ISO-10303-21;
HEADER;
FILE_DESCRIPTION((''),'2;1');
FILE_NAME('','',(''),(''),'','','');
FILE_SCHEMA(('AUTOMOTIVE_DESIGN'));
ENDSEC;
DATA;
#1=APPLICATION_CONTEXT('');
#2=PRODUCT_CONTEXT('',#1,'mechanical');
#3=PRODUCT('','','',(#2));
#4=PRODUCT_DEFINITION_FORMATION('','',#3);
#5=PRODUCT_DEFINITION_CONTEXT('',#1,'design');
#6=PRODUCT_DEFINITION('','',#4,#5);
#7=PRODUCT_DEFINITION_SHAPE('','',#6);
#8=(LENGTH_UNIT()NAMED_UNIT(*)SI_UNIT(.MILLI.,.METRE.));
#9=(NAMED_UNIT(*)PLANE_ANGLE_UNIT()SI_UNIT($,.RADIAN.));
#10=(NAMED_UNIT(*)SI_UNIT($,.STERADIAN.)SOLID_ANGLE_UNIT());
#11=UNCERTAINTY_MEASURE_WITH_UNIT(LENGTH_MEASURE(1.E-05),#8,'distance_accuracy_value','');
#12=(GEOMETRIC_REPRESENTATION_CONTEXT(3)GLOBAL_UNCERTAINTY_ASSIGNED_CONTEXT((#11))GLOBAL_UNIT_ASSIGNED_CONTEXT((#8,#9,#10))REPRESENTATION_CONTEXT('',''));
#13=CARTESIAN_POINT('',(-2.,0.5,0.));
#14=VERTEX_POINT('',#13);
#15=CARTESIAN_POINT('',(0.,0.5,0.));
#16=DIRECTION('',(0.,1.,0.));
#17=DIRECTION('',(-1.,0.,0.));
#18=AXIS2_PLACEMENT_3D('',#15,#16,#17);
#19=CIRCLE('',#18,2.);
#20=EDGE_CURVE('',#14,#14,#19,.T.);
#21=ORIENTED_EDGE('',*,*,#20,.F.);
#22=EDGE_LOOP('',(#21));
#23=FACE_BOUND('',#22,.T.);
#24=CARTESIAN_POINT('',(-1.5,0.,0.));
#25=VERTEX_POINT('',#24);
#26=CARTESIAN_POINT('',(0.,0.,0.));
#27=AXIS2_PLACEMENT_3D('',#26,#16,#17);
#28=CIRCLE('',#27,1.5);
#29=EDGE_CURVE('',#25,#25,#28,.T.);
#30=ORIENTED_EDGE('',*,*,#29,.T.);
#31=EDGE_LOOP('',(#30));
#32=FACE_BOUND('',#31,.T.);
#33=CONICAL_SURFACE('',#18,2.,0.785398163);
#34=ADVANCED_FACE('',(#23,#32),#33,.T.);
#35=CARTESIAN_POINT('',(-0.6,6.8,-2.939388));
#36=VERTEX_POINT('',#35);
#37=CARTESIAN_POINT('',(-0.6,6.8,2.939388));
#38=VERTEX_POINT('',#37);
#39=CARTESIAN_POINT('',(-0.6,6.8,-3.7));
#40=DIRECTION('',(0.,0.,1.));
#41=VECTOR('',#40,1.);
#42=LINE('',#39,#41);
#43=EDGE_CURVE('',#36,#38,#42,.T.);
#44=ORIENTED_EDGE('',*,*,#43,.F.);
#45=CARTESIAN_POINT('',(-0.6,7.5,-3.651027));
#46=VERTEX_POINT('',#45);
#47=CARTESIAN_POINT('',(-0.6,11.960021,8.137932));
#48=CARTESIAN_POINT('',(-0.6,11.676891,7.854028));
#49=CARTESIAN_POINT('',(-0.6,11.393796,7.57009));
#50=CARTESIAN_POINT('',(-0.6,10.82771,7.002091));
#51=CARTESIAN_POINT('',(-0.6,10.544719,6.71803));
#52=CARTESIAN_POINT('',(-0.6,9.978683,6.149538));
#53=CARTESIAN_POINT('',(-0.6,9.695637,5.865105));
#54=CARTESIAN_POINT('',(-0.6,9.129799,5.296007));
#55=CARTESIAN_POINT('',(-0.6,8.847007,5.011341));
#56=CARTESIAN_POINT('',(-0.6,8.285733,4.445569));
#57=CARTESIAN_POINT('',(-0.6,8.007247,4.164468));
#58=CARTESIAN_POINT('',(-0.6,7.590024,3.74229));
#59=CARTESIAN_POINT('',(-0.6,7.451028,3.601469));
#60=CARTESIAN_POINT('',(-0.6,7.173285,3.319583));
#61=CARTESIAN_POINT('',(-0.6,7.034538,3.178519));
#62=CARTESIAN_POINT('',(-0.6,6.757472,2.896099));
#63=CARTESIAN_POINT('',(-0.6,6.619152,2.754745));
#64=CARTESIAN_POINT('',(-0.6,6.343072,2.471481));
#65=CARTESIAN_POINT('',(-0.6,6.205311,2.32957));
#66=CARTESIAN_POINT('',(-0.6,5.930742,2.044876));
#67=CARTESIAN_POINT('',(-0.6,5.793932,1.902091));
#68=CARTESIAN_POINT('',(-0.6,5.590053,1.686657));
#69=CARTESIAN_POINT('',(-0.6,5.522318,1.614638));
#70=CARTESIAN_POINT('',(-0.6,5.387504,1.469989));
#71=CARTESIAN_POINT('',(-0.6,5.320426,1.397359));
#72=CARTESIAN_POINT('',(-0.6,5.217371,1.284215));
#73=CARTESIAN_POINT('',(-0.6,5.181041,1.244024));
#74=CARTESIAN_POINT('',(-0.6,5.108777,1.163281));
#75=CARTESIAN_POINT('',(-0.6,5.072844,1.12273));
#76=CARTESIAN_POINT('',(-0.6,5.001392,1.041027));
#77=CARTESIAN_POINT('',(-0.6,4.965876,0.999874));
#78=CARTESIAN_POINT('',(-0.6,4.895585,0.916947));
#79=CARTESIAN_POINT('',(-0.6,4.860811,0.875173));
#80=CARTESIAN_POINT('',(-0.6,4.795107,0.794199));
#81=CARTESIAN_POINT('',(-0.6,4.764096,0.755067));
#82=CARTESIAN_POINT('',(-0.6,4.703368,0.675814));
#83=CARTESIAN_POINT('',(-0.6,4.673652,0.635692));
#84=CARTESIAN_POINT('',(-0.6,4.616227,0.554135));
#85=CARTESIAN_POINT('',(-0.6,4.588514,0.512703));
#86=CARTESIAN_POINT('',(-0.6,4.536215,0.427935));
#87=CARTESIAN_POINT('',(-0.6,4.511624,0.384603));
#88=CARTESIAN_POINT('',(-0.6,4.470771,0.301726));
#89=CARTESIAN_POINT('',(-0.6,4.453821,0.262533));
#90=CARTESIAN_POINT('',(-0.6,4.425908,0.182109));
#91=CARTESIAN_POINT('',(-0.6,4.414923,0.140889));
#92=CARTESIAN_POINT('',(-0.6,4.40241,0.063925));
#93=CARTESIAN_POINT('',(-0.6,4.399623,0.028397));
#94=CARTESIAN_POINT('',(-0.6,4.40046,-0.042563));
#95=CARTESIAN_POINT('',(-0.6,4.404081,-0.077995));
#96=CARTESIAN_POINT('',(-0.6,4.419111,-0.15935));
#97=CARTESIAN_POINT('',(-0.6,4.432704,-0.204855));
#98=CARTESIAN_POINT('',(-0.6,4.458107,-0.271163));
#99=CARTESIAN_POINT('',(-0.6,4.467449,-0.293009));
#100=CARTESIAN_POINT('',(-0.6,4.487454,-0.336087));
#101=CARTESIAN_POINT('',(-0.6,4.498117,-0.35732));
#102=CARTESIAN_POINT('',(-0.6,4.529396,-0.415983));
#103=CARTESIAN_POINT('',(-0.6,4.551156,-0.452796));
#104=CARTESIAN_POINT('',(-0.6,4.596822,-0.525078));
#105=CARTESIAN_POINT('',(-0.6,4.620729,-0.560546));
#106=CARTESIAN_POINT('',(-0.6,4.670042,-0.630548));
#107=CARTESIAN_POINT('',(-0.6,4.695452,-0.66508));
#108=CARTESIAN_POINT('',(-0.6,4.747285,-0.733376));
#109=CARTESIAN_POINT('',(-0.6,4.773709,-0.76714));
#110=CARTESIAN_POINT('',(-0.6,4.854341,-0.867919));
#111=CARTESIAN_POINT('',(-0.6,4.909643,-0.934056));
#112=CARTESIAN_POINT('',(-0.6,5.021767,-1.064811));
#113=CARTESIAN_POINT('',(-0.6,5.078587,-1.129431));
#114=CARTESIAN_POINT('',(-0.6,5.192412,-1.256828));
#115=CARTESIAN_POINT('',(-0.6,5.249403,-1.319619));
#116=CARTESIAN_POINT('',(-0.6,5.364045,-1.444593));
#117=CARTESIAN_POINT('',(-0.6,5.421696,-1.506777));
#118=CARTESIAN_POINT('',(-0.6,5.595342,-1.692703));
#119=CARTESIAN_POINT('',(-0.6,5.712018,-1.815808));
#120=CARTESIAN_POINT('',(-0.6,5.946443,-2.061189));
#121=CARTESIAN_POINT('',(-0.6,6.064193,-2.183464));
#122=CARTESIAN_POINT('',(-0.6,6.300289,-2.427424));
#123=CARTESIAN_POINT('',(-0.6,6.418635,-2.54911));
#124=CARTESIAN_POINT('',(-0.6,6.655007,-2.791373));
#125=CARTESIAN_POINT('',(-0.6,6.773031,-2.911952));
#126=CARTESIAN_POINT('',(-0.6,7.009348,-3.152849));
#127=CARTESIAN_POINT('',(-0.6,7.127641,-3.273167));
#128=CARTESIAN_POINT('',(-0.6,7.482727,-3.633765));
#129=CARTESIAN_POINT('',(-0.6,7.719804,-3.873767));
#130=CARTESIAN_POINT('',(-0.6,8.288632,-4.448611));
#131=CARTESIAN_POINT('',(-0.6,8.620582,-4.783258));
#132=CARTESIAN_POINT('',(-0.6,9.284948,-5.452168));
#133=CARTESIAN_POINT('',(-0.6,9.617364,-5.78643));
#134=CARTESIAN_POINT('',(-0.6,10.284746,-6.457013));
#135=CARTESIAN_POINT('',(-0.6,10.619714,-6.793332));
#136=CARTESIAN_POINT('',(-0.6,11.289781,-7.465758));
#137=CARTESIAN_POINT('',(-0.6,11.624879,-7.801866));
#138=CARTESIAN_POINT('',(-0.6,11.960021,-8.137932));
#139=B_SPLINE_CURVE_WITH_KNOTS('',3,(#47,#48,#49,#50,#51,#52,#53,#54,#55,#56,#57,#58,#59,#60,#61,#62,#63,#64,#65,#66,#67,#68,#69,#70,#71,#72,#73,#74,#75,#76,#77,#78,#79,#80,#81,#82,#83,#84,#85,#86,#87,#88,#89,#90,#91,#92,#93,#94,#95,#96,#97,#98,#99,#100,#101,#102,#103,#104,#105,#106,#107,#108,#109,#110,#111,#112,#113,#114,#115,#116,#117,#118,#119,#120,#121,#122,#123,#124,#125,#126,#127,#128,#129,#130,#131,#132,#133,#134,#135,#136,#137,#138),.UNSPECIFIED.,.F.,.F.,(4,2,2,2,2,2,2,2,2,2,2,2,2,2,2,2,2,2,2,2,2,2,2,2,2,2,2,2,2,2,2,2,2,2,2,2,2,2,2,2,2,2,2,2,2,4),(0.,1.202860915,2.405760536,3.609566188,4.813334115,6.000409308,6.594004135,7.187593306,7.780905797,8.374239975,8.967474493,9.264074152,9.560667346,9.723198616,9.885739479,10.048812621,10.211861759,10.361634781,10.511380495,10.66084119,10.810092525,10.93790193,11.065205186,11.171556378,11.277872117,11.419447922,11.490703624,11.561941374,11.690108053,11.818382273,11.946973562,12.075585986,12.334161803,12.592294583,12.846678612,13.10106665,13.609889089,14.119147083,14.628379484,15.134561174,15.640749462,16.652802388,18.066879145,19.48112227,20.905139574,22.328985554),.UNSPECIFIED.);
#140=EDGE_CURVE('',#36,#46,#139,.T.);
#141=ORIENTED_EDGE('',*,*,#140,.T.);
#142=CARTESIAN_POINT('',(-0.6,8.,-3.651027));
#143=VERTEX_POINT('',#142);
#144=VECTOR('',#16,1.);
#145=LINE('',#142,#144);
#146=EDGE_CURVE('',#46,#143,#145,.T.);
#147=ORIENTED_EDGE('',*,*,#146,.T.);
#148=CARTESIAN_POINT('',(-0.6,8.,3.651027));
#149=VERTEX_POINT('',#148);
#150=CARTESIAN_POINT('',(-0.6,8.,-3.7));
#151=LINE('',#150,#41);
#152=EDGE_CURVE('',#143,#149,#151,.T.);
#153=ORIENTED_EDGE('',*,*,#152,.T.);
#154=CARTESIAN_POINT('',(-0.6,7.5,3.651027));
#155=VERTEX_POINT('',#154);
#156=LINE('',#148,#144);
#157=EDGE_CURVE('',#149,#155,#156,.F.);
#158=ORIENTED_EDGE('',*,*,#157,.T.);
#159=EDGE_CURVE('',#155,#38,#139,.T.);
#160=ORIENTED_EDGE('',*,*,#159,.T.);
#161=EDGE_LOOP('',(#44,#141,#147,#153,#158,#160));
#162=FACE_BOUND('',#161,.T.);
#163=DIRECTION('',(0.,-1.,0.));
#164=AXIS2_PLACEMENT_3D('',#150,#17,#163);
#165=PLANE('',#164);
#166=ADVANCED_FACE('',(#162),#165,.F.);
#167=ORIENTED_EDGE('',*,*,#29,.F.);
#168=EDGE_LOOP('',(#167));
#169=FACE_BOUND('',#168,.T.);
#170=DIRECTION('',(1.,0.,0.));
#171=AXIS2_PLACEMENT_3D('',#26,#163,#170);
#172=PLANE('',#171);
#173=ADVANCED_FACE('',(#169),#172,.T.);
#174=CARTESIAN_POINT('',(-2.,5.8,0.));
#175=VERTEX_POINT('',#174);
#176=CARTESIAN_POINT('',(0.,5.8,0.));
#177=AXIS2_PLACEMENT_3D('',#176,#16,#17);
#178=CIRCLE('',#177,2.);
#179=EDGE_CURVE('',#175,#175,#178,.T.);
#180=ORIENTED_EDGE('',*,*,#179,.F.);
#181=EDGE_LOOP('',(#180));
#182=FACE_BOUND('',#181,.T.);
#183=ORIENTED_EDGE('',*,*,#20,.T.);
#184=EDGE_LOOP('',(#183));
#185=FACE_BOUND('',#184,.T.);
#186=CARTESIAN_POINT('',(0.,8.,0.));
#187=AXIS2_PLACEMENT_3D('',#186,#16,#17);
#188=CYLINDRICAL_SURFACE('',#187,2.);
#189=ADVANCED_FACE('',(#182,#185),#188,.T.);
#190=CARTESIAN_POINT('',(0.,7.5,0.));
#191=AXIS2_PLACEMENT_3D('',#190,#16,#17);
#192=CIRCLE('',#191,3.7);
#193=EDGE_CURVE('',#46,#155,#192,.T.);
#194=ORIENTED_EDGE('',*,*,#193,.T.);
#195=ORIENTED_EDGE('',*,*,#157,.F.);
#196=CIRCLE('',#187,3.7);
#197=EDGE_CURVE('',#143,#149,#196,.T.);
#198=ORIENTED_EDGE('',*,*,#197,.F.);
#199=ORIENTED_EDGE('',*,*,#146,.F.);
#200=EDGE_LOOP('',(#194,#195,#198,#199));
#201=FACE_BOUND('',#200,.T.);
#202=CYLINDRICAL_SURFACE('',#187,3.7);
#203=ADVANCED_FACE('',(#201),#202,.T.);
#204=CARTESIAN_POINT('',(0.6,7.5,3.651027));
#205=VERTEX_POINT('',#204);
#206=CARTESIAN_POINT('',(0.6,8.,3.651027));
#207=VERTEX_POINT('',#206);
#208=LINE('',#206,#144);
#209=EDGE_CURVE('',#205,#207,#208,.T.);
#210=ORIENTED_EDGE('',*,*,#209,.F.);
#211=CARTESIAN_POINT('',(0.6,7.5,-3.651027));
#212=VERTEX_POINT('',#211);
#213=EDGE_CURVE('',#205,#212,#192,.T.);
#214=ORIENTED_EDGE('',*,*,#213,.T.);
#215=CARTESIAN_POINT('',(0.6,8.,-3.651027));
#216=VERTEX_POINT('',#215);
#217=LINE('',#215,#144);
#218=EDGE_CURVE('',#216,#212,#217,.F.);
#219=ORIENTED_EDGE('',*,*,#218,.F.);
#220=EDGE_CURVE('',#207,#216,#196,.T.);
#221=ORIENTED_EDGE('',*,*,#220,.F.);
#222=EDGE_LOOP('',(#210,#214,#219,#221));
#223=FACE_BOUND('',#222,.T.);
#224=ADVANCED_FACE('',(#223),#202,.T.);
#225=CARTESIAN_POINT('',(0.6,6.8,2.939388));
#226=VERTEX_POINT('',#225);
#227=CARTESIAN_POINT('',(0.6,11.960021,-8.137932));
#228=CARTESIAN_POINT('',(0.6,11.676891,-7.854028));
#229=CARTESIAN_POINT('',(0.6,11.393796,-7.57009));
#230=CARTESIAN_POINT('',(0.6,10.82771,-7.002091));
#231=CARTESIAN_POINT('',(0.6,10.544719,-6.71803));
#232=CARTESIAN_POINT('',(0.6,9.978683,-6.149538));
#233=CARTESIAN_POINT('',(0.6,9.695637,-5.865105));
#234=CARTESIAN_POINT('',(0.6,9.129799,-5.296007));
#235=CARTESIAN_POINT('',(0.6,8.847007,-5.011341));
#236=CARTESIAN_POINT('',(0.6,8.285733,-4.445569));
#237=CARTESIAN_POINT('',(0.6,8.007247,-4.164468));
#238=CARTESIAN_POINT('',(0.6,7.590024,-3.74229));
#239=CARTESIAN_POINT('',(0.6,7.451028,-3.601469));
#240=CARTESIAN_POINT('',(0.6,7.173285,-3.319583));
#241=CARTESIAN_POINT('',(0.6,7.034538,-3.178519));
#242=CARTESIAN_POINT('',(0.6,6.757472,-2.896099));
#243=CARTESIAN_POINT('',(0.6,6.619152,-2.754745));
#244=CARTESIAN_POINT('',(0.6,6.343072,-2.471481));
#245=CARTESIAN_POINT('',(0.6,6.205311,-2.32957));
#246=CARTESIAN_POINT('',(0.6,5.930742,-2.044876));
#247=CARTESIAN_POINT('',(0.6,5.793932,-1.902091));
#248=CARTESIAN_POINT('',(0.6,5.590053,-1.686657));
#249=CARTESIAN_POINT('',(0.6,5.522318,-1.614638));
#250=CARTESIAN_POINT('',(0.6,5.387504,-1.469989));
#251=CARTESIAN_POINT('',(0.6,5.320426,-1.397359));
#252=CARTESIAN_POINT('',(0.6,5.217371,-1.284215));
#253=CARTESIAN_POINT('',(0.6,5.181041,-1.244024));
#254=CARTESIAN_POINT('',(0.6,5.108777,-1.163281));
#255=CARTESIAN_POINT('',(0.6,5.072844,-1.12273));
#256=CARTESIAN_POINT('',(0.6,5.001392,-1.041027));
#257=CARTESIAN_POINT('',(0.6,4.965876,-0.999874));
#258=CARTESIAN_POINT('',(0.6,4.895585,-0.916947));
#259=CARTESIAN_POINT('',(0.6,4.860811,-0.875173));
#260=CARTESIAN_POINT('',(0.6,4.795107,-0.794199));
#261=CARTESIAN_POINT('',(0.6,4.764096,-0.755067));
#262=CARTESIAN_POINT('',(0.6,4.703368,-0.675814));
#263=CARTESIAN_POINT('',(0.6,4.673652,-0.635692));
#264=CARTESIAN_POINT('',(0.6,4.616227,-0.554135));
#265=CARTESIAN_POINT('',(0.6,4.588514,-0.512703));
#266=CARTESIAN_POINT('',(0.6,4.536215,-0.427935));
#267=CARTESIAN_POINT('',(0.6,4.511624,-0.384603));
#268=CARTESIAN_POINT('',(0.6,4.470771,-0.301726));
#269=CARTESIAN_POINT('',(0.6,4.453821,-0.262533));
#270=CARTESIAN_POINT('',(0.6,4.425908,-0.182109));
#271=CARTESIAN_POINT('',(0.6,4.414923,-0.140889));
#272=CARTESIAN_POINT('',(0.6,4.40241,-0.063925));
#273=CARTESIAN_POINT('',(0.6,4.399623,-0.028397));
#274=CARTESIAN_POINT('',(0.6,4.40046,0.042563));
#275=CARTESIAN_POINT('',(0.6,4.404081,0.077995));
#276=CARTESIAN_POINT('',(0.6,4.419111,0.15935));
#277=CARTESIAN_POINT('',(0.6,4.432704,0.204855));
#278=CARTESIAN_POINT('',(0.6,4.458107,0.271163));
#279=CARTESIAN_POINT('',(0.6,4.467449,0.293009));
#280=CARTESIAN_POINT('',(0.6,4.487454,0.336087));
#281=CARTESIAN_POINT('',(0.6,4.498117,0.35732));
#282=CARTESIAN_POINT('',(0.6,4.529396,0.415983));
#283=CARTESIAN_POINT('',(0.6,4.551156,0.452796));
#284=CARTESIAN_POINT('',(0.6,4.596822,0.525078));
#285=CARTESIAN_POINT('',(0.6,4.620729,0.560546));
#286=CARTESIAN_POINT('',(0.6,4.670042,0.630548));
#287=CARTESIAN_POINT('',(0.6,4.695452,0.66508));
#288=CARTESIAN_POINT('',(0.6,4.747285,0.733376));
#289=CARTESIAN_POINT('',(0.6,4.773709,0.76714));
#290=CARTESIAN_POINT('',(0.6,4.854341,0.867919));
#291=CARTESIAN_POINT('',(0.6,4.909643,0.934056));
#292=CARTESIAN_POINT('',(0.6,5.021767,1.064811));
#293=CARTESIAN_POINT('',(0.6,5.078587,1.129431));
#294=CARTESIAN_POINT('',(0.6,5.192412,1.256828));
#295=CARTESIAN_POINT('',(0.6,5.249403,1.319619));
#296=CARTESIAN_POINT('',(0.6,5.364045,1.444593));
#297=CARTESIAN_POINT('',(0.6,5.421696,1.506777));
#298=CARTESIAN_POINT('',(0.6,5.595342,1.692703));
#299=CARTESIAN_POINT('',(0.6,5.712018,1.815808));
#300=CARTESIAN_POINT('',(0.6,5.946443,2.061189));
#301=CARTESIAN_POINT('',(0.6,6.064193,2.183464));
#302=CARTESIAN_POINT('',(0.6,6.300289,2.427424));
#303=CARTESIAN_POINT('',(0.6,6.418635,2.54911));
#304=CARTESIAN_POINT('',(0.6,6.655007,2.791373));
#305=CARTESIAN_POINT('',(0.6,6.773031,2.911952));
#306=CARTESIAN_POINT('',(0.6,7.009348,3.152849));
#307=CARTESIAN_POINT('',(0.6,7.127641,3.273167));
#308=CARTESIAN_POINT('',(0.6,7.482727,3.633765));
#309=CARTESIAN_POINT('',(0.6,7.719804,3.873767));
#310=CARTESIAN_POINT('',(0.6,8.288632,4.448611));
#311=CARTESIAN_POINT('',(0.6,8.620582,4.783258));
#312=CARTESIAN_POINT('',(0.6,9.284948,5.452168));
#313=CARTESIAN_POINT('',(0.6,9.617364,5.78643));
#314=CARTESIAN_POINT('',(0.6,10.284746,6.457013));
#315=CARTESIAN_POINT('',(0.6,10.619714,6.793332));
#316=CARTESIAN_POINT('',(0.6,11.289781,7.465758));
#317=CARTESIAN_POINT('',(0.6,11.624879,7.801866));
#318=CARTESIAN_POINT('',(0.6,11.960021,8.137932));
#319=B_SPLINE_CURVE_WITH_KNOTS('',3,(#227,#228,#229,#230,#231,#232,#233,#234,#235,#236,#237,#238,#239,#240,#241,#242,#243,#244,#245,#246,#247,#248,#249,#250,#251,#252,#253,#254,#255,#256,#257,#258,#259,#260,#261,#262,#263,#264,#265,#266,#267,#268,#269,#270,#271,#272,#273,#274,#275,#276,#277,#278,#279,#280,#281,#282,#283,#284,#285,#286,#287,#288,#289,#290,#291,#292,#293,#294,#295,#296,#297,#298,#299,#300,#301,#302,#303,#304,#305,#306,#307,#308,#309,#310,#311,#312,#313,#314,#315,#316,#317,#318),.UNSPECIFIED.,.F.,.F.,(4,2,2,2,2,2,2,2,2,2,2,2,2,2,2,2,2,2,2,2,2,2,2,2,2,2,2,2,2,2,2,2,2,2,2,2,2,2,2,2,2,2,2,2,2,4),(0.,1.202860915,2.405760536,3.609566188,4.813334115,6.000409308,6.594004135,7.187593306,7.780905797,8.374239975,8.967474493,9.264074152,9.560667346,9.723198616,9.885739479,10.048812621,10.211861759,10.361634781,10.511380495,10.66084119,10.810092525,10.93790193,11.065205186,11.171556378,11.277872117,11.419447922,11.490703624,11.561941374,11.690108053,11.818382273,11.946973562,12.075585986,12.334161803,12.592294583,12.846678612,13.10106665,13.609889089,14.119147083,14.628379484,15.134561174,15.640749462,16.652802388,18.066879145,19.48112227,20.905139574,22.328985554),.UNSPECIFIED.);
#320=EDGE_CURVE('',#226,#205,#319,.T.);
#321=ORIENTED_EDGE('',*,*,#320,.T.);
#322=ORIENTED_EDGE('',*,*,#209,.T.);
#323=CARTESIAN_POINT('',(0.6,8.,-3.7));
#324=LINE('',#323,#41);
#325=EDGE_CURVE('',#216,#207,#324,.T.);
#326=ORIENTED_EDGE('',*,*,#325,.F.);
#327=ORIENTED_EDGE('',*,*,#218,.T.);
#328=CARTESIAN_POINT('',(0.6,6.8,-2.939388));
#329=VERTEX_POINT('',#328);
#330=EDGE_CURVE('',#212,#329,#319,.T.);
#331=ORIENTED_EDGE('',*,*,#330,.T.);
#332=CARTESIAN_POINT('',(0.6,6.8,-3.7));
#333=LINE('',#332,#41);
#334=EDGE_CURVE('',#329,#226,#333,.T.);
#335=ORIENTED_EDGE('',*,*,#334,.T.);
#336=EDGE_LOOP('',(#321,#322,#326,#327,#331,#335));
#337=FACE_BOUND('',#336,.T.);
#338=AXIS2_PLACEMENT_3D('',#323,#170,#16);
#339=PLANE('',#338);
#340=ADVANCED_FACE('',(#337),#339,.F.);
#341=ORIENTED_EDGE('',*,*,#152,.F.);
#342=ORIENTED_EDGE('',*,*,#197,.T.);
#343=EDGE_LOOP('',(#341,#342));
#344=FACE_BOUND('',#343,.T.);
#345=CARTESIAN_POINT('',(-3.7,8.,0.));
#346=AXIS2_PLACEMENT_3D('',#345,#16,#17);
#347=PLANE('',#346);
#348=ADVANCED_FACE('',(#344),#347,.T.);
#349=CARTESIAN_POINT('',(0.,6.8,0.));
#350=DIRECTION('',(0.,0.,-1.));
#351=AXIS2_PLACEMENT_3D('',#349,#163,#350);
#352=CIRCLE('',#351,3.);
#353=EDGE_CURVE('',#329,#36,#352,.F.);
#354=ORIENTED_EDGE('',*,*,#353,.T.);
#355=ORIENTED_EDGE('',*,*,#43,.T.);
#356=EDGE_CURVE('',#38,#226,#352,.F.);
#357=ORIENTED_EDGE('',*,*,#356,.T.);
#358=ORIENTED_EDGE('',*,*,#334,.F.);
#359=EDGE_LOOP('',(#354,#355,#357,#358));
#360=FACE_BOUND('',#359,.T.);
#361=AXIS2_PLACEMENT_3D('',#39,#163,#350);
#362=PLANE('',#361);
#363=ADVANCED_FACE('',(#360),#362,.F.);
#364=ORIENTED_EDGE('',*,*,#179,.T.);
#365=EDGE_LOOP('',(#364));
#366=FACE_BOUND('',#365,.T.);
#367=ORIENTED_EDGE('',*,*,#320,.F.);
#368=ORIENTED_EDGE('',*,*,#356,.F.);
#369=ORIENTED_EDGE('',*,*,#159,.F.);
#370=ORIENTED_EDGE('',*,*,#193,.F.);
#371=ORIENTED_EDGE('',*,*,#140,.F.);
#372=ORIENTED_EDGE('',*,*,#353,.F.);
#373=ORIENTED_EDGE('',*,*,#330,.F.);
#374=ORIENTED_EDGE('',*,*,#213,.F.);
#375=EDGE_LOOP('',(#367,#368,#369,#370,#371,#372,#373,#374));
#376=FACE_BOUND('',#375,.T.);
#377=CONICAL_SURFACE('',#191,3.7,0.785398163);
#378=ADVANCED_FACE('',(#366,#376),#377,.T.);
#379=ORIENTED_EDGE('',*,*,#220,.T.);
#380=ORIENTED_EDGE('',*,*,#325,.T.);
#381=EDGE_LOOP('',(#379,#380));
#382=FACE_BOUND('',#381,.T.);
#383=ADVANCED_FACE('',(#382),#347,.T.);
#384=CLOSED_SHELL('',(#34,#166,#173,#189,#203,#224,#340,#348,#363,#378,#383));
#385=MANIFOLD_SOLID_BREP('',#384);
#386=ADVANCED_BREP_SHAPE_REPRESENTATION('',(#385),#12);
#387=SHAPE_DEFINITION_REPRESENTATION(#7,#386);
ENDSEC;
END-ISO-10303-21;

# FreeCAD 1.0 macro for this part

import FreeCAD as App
import Part
import Sketcher

V = App.Vector
Q = App.Units.Quantity


def add_polygon(sketch, points):
    """Adds a closed chain of lines whose ends are joined by coincident constraints."""
    first, n = sketch.GeometryCount, len(points)
    for a, b in zip(points, points[1:] + points[:1]):
        sketch.addGeometry(Part.LineSegment(App.Vector(*a, 0), App.Vector(*b, 0)), False)
    for i in range(n):
        sketch.addConstraint(Sketcher.Constraint("Coincident", first + i, 2, first + (i + 1) % n, 1))

doc = App.newDocument("Part")
body = doc.addObject("PartDesign::Body", "Body")

sketch1 = body.newObject("Sketcher::SketchObject", "Sketch")
sketch1.AttachmentSupport = (doc.getObject("XY_Plane"), [""])
sketch1.MapMode = "FlatFace"
add_polygon(sketch1, [(-1.5, 0), (0, 0), (0, 8), (-3.7, 8), (-3.7, 7.5), (-2, 5.8), (-2, 0.5)])
sketch1.addConstraint(Sketcher.Constraint("Horizontal", 0))
sketch1.addConstraint(Sketcher.Constraint("Vertical", 1))
sketch1.addConstraint(Sketcher.Constraint("Horizontal", 2))
sketch1.addConstraint(Sketcher.Constraint("Vertical", 3))
sketch1.addConstraint(Sketcher.Constraint("Vertical", 5))
sketch1.addConstraint(Sketcher.Constraint("Coincident", 0, 2, -1, 1))
sketch1.addConstraint(Sketcher.Constraint("Parallel", 4, 6))
sketch1.addConstraint(Sketcher.Constraint("DistanceY", 1, 1, 1, 2, Q("8 mm")))
sketch1.addConstraint(Sketcher.Constraint("Angle", 4, Q("-45 deg")))
sketch1.addConstraint(Sketcher.Constraint("DistanceX", 0, 1, 0, 2, Q("1.5 mm")))
sketch1.addConstraint(Sketcher.Constraint("DistanceX", 2, 2, 2, 1, Q("3.7 mm")))
sketch1.addConstraint(Sketcher.Constraint("DistanceY", 3, 2, 3, 1, Q("0.5 mm")))
sketch1.addConstraint(Sketcher.Constraint("DistanceX", 4, 2, -1, 1, Q("2 mm")))
revolution = body.newObject("PartDesign::Revolution", "Revolution")
revolution.Profile = sketch1
revolution.ReferenceAxis = (sketch1, ["V_Axis"])
revolution.Angle = 360

sketch2 = body.newObject("Sketcher::SketchObject", "Sketch001")
sketch2.AttachmentSupport = (doc.getObject("XY_Plane"), [""])
sketch2.MapMode = "FlatFace"
add_polygon(sketch2, [(-0.6, 8), (-0.6, 6.8), (0.6, 6.8), (0.6, 8)])
sketch2.addConstraint(Sketcher.Constraint("Vertical", 0))
sketch2.addConstraint(Sketcher.Constraint("Horizontal", 1))
sketch2.addConstraint(Sketcher.Constraint("Vertical", 2))
sketch2.addConstraint(Sketcher.Constraint("Horizontal", 3))
sketch2.addConstraint(Sketcher.Constraint("Equal", 3, 0))
sketch2.addConstraint(Sketcher.Constraint("DistanceX", 1, 1, 1, 2, Q("1.2 mm")))
sketch2.addConstraint(Sketcher.Constraint("DistanceY", -1, 1, 2, 2, Q("8 mm")))
sketch2.addConstraint(Sketcher.Constraint("DistanceX", 0, 2, -1, 1, Q("0.6 mm")))
pocket1 = body.newObject("PartDesign::Pocket", "Pocket")
pocket1.Profile = sketch2
pocket1.Type = "ThroughAll"
pocket1.Midplane = True

doc.recompute()
